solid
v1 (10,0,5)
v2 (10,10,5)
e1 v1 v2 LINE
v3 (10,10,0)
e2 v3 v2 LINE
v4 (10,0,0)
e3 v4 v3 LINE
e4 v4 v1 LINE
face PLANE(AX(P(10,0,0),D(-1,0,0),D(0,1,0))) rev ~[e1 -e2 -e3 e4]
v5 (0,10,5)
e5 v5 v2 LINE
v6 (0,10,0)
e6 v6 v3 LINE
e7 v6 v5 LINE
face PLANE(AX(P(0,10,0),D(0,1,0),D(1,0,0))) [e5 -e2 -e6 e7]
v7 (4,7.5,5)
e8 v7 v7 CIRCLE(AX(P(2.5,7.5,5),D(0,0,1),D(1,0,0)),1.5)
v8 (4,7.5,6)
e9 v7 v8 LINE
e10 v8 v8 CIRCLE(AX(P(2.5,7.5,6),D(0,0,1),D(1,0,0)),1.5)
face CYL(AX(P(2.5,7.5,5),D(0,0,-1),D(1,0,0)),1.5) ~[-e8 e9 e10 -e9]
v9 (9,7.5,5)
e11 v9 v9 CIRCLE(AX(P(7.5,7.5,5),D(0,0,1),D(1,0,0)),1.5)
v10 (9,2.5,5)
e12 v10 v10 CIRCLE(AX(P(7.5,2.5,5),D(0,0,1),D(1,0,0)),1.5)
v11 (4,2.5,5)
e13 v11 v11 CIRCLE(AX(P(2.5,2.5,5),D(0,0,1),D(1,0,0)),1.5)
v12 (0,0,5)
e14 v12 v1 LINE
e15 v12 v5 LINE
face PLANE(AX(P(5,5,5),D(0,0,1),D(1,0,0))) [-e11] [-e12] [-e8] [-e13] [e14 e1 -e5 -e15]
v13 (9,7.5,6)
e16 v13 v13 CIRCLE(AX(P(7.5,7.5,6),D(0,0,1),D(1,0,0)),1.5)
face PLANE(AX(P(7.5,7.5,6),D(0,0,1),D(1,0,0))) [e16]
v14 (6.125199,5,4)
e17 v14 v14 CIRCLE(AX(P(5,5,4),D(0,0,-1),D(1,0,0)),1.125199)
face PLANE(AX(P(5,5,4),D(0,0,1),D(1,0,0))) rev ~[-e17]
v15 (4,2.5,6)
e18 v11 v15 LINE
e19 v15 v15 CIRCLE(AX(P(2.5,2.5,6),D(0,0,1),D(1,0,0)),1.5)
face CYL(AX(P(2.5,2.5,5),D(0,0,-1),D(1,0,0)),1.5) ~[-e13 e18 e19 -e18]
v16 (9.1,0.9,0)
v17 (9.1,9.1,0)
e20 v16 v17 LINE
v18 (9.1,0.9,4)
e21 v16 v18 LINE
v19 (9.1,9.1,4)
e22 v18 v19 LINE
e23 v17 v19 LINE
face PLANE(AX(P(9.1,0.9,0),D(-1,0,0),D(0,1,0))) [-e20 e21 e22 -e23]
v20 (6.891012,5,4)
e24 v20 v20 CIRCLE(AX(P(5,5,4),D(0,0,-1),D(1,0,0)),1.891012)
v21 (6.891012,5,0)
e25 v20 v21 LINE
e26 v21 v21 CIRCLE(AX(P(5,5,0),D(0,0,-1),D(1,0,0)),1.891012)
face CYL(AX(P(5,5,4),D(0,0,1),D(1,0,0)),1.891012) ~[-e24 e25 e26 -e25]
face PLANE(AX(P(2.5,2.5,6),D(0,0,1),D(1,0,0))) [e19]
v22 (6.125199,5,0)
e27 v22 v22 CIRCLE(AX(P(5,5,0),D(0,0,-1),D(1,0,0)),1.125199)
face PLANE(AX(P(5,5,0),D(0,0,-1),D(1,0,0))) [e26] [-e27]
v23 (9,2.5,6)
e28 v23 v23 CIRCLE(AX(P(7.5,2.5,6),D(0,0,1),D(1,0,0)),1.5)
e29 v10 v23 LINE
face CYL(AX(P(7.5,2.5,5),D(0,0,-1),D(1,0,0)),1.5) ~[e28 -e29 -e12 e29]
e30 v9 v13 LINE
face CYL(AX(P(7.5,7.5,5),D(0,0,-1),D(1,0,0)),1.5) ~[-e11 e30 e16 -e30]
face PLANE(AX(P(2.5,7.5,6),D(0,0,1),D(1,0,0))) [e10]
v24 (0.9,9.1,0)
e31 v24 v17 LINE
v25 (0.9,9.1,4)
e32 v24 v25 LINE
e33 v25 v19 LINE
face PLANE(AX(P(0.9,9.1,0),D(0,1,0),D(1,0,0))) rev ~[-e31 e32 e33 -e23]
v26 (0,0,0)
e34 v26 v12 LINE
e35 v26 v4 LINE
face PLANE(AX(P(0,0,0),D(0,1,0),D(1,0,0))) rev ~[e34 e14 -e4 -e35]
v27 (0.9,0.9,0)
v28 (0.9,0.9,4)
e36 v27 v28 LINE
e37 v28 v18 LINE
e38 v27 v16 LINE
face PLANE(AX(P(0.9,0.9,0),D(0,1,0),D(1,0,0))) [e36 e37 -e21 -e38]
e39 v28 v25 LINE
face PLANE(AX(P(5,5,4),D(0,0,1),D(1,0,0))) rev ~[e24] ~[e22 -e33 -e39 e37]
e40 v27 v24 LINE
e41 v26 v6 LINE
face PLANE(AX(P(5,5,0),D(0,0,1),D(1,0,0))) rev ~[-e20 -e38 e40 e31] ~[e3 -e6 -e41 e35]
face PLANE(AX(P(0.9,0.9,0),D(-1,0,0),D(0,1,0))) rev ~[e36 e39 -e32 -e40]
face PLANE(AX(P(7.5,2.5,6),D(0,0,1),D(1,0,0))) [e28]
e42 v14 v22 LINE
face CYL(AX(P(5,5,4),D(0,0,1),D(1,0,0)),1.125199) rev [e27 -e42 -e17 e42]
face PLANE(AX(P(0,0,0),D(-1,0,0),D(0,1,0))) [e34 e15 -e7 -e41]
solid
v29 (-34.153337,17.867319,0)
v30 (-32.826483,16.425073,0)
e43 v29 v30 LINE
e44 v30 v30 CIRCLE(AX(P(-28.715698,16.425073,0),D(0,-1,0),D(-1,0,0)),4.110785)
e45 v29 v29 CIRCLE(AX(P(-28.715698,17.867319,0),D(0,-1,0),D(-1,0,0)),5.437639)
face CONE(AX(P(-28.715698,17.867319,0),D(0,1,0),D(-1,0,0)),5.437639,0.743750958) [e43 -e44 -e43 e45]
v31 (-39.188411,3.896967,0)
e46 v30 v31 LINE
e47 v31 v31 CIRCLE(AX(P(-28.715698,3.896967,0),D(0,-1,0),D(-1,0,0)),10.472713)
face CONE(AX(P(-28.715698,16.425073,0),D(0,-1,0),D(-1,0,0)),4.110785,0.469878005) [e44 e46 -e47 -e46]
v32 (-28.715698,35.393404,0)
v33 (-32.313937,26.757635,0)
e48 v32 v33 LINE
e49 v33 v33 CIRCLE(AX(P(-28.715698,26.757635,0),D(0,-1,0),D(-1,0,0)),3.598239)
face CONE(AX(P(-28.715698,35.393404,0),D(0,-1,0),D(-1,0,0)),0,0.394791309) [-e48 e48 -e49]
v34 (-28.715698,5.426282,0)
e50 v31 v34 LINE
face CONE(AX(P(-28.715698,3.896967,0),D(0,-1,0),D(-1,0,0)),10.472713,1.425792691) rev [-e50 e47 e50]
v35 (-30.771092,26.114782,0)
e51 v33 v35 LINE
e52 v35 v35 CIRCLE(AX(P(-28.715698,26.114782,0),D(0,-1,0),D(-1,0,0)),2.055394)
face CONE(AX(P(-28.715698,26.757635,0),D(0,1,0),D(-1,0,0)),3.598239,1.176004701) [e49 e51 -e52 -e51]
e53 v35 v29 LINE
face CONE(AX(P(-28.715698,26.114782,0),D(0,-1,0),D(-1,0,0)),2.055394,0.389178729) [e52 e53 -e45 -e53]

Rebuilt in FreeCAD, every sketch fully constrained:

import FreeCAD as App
import Part
import Sketcher

V = App.Vector
Q = App.Units.Quantity

doc = App.newDocument("Part")
body = doc.addObject("PartDesign::Body", "Body")

# Sketch on XY plane
sketch1 = body.newObject("Sketcher::SketchObject", "Sketch")
sketch1.AttachmentSupport = (doc.getObject("XY_Plane"), [""])
sketch1.MapMode = "FlatFace"
sketch1.addGeometry(Part.LineSegment(V(0, 10, 0), V(0, 0, 0)), False)
sketch1.addGeometry(Part.LineSegment(V(0, 0, 0), V(10, 0, 0)), False)
sketch1.addGeometry(Part.LineSegment(V(10, 0, 0), V(10, 10, 0)), False)
sketch1.addGeometry(Part.LineSegment(V(10, 10, 0), V(0, 10, 0)), False)
sketch1.addConstraint(Sketcher.Constraint("Coincident", 0, 2, 1, 1))
sketch1.addConstraint(Sketcher.Constraint("Coincident", 1, 2, 2, 1))
sketch1.addConstraint(Sketcher.Constraint("Coincident", 2, 2, 3, 1))
sketch1.addConstraint(Sketcher.Constraint("Coincident", 3, 2, 0, 1))
sketch1.addConstraint(Sketcher.Constraint("Vertical", 0))
sketch1.addConstraint(Sketcher.Constraint("Horizontal", 1))
sketch1.addConstraint(Sketcher.Constraint("Vertical", 2))
sketch1.addConstraint(Sketcher.Constraint("Horizontal", 3))
sketch1.addConstraint(Sketcher.Constraint("Coincident", 0, 2, -1, 1))
sketch1.addConstraint(Sketcher.Constraint("Equal", 3, 0))
sketch1.addConstraint(Sketcher.Constraint("DistanceX", 1, 1, 1, 2, Q("10 mm")))
pad1 = body.newObject("PartDesign::Pad", "Pad")
pad1.Profile = sketch1
pad1.Length = 5

# Sketch on XY plane
sketch2 = body.newObject("Sketcher::SketchObject", "Sketch001")
sketch2.AttachmentSupport = (doc.getObject("XY_Plane"), [""])
sketch2.MapMode = "FlatFace"
sketch2.AttachmentOffset = App.Placement(V(0, 0, 5), App.Rotation())
sketch2.addGeometry(Part.Circle(V(2.5, 7.5, 0), V(0, 0, 1), 1.5), False)
sketch2.addGeometry(Part.Circle(V(2.5, 2.5, 0), V(0, 0, 1), 1.5), False)
sketch2.addGeometry(Part.Circle(V(7.5, 2.5, 0), V(0, 0, 1), 1.5), False)
sketch2.addGeometry(Part.Circle(V(7.5, 7.5, 0), V(0, 0, 1), 1.5), False)
sketch2.addConstraint(Sketcher.Constraint("Equal", 0, 1))
sketch2.addConstraint(Sketcher.Constraint("Equal", 1, 2))
sketch2.addConstraint(Sketcher.Constraint("Equal", 2, 3))
sketch2.addConstraint(Sketcher.Constraint("Horizontal", 1, 3, 2, 3))
sketch2.addConstraint(Sketcher.Constraint("Horizontal", 0, 3, 3, 3))
sketch2.addConstraint(Sketcher.Constraint("Vertical", 0, 3, 1, 3))
sketch2.addConstraint(Sketcher.Constraint("Vertical", 2, 3, 3, 3))
sketch2.addConstraint(Sketcher.Constraint("Diameter", 0, Q("3 mm")))
sketch2.addConstraint(Sketcher.Constraint("DistanceY", 1, 3, 0, 3, Q("5 mm")))
sketch2.addConstraint(Sketcher.Constraint("DistanceX", 1, 3, 2, 3, Q("5 mm")))
sketch2.addConstraint(Sketcher.Constraint("DistanceX", -1, 1, 0, 3, Q("2.5 mm")))
sketch2.addConstraint(Sketcher.Constraint("DistanceY", -1, 1, 0, 3, Q("7.5 mm")))
pad2 = body.newObject("PartDesign::Pad", "Pad001")
pad2.Profile = sketch2
pad2.Length = 1

# Sketch on XY plane
sketch3 = body.newObject("Sketcher::SketchObject", "Sketch002")
sketch3.AttachmentSupport = (doc.getObject("XY_Plane"), [""])
sketch3.MapMode = "FlatFace"
sketch3.addGeometry(Part.LineSegment(V(1, 9, 0), V(1, 1, 0)), False)
sketch3.addGeometry(Part.LineSegment(V(1, 1, 0), V(9, 1, 0)), False)
sketch3.addGeometry(Part.LineSegment(V(9, 1, 0), V(9, 9, 0)), False)
sketch3.addGeometry(Part.LineSegment(V(9, 9, 0), V(1, 9, 0)), False)
sketch3.addConstraint(Sketcher.Constraint("Coincident", 0, 2, 1, 1))
sketch3.addConstraint(Sketcher.Constraint("Coincident", 1, 2, 2, 1))
sketch3.addConstraint(Sketcher.Constraint("Coincident", 2, 2, 3, 1))
sketch3.addConstraint(Sketcher.Constraint("Coincident", 3, 2, 0, 1))
sketch3.addConstraint(Sketcher.Constraint("Vertical", 0))
sketch3.addConstraint(Sketcher.Constraint("Horizontal", 1))
sketch3.addConstraint(Sketcher.Constraint("Vertical", 2))
sketch3.addConstraint(Sketcher.Constraint("Horizontal", 3))
sketch3.addConstraint(Sketcher.Constraint("Equal", 3, 0))
sketch3.addConstraint(Sketcher.Constraint("DistanceX", 1, 1, 1, 2, Q("8.2 mm")))
sketch3.addConstraint(Sketcher.Constraint("DistanceX", -1, 1, 0, 2, Q("0.9 mm")))
sketch3.addConstraint(Sketcher.Constraint("DistanceY", -1, 1, 0, 2, Q("0.9 mm")))
pocket1 = body.newObject("PartDesign::Pocket", "Pocket")
pocket1.Profile = sketch3
pocket1.Length = 4
pocket1.Reversed = True

# Sketch on XY plane
sketch4 = body.newObject("Sketcher::SketchObject", "Sketch003")
sketch4.AttachmentSupport = (doc.getObject("XY_Plane"), [""])
sketch4.MapMode = "FlatFace"
sketch4.AttachmentOffset = App.Placement(V(0, 0, 4), App.Rotation())
sketch4.addGeometry(Part.Circle(V(5, 5, 0), V(0, 0, 1), 1.9), False)
sketch4.addGeometry(Part.Circle(V(5, 5, 0), V(0, 0, 1), 1.1), False)
sketch4.addConstraint(Sketcher.Constraint("Coincident", 1, 3, 0, 3))
sketch4.addConstraint(Sketcher.Constraint("DistanceX", -1, 1, 0, 3, Q("5 mm")))
sketch4.addConstraint(Sketcher.Constraint("DistanceY", -1, 1, 0, 3, Q("5 mm")))
sketch4.addConstraint(Sketcher.Constraint("Diameter", 1, Q("2.250398 mm")))
sketch4.addConstraint(Sketcher.Constraint("Diameter", 0, Q("3.782024 mm")))
pad3 = body.newObject("PartDesign::Pad", "Pad002")
pad3.Profile = sketch4
pad3.Length = 4
pad3.Reversed = True
body2 = doc.addObject("PartDesign::Body", "Body001")

# Sketch on XY plane
sketch5 = body2.newObject("Sketcher::SketchObject", "Sketch004")
sketch5.AttachmentSupport = (doc.getObject("XY_Plane001"), [""])
sketch5.MapMode = "FlatFace"
sketch5.addGeometry(Part.LineSegment(V(-39.2, 3.9, 0), V(-28.7, 5.4, 0)), False)
sketch5.addGeometry(Part.LineSegment(V(-28.7, 5.4, 0), V(-28.7, 35.4, 0)), False)
sketch5.addGeometry(Part.LineSegment(V(-28.7, 35.4, 0), V(-32.3, 26.8, 0)), False)
sketch5.addGeometry(Part.LineSegment(V(-32.3, 26.8, 0), V(-30.8, 26.1, 0)), False)
sketch5.addGeometry(Part.LineSegment(V(-30.8, 26.1, 0), V(-34.2, 17.9, 0)), False)
sketch5.addGeometry(Part.LineSegment(V(-34.2, 17.9, 0), V(-32.8, 16.4, 0)), False)
sketch5.addGeometry(Part.LineSegment(V(-32.8, 16.4, 0), V(-39.2, 3.9, 0)), False)
sketch5.addGeometry(Part.LineSegment(V(-28.7, 35.4, 0), V(-28.7, 3.9, 0)), True)  # axis
sketch5.addConstraint(Sketcher.Constraint("Coincident", 0, 2, 1, 1))
sketch5.addConstraint(Sketcher.Constraint("Coincident", 1, 2, 2, 1))
sketch5.addConstraint(Sketcher.Constraint("Coincident", 2, 2, 3, 1))
sketch5.addConstraint(Sketcher.Constraint("Coincident", 3, 2, 4, 1))
sketch5.addConstraint(Sketcher.Constraint("Coincident", 4, 2, 5, 1))
sketch5.addConstraint(Sketcher.Constraint("Coincident", 5, 2, 6, 1))
sketch5.addConstraint(Sketcher.Constraint("Coincident", 6, 2, 0, 1))
sketch5.addConstraint(Sketcher.Constraint("Vertical", 1))
sketch5.addConstraint(Sketcher.Constraint("Vertical", 7))
sketch5.addConstraint(Sketcher.Constraint("Coincident", 7, 1, 1, 2))
sketch5.addConstraint(Sketcher.Constraint("Perpendicular", 2, 3))
sketch5.addConstraint(Sketcher.Constraint("Horizontal", 6, 2, 7, 2))
sketch5.addConstraint(Sketcher.Constraint("DistanceY", 1, 1, 1, 2, Q("29.967122 mm")))
sketch5.addConstraint(Sketcher.Constraint("DistanceX", 0, 2, -1, 1, Q("28.715698 mm")))
sketch5.addConstraint(Sketcher.Constraint("DistanceY", 0, 2, 3, 2, Q("20.6885 mm")))
sketch5.addConstraint(Sketcher.Constraint("DistanceX", 4, 2, 2, 2, Q("1.8394 mm")))
sketch5.addConstraint(Sketcher.Constraint("Distance", 5, Q("1.959749 mm")))
sketch5.addConstraint(Sketcher.Constraint("DistanceY", 7, 2, 7, 1, Q("31.496437 mm")))
sketch5.addConstraint(Sketcher.Constraint("DistanceY", -1, 1, 0, 2, Q("5.426282 mm")))
sketch5.addConstraint(Sketcher.Constraint("DistanceX", 3, 2, -1, 1, Q("30.771092 mm")))
sketch5.addConstraint(Sketcher.Constraint("DistanceY", -1, 1, 4, 2, Q("17.867319 mm")))
sketch5.addConstraint(Sketcher.Constraint("DistanceX", 6, 2, -1, 1, Q("39.188411 mm")))
sketch5.addConstraint(Sketcher.Constraint("DistanceX", 2, 2, 1, 2, Q("3.598239 mm")))
sketch5.addConstraint(Sketcher.Constraint("DistanceX", 5, 2, 3, 2, Q("2.055391 mm")))
revolution = body2.newObject("PartDesign::Revolution", "Revolution")
revolution.Profile = sketch5
revolution.ReferenceAxis = (sketch5, ["Axis0"])
revolution.Angle = 360

doc.recompute()
